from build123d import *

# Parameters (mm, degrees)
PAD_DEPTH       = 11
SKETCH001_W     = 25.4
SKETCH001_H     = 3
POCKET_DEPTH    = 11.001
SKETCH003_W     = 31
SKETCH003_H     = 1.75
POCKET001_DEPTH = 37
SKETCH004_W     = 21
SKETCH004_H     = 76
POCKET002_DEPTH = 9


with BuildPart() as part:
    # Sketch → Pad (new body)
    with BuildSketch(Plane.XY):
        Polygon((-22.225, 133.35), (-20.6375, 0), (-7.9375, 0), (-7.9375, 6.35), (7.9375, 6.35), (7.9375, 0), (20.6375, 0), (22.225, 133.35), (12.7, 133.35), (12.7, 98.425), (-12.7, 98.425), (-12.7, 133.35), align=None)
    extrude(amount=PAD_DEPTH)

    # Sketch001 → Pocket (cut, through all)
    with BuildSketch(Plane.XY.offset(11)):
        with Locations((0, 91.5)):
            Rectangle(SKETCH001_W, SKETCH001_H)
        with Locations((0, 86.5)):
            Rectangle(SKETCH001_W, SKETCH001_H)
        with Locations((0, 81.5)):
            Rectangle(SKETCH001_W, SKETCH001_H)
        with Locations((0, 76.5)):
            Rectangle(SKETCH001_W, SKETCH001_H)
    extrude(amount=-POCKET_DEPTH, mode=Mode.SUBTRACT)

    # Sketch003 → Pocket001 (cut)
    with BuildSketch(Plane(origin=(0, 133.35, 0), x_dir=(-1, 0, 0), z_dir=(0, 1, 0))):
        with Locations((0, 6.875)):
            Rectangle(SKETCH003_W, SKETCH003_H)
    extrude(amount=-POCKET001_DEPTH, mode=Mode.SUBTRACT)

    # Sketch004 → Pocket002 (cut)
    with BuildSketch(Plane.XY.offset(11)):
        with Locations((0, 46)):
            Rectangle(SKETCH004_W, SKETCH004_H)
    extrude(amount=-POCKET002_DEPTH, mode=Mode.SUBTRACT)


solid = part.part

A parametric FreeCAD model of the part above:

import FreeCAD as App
import Part
import Sketcher

V = App.Vector
Q = App.Units.Quantity

doc = App.newDocument("Part")
body = doc.addObject("PartDesign::Body", "Body")

sketch1 = body.newObject("Sketcher::SketchObject", "Sketch")
sketch1.AttachmentSupport = (doc.getObject("XY_Plane"), [""])
sketch1.MapMode = "FlatFace"
sketch1.addGeometry([
    Part.LineSegment(V(-22, 133, 0), V(-21, 0, 0)),
    Part.LineSegment(V(-21, 0, 0), V(-8, 0, 0)),
    Part.LineSegment(V(-8, 0, 0), V(-8, 6, 0)),
    Part.LineSegment(V(-8, 6, 0), V(8, 6, 0)),
    Part.LineSegment(V(8, 6, 0), V(8, 0, 0)),
    Part.LineSegment(V(8, 0, 0), V(21, 0, 0)),
    Part.LineSegment(V(21, 0, 0), V(22, 133, 0)),
    Part.LineSegment(V(22, 133, 0), V(13, 133, 0)),
    Part.LineSegment(V(13, 133, 0), V(13, 98, 0)),
    Part.LineSegment(V(13, 98, 0), V(-13, 98, 0)),
    Part.LineSegment(V(-13, 98, 0), V(-13, 133, 0)),
    Part.LineSegment(V(-13, 133, 0), V(-22, 133, 0)),
], False)
sketch1.addConstraint([
    Sketcher.Constraint("Coincident", 0, 2, 1, 1),
    Sketcher.Constraint("Coincident", 1, 2, 2, 1),
    Sketcher.Constraint("Coincident", 2, 2, 3, 1),
    Sketcher.Constraint("Coincident", 3, 2, 4, 1),
    Sketcher.Constraint("Coincident", 4, 2, 5, 1),
    Sketcher.Constraint("Coincident", 5, 2, 6, 1),
    Sketcher.Constraint("Coincident", 6, 2, 7, 1),
    Sketcher.Constraint("Coincident", 7, 2, 8, 1),
    Sketcher.Constraint("Coincident", 8, 2, 9, 1),
    Sketcher.Constraint("Coincident", 9, 2, 10, 1),
    Sketcher.Constraint("Coincident", 10, 2, 11, 1),
    Sketcher.Constraint("Coincident", 11, 2, 0, 1),
    Sketcher.Constraint("Horizontal", 1),
    Sketcher.Constraint("Vertical", 2),
    Sketcher.Constraint("Horizontal", 3),
    Sketcher.Constraint("Vertical", 4),
    Sketcher.Constraint("Horizontal", 5),
    Sketcher.Constraint("Horizontal", 7),
    Sketcher.Constraint("Vertical", 8),
    Sketcher.Constraint("Horizontal", 9),
    Sketcher.Constraint("Vertical", 10),
    Sketcher.Constraint("Horizontal", 11),
    Sketcher.Constraint("Symmetric", 1, 2, 4, 2, -1, 1),
    Sketcher.Constraint("Symmetric", 0, 2, 5, 2, -2),
    Sketcher.Constraint("Symmetric", 7, 2, 10, 2, -2),
    Sketcher.Constraint("Equal", 7, 11),
    Sketcher.Constraint("DistanceX", 1, 1, 1, 2, Q("12.7 mm")),
    Sketcher.Constraint("DistanceX", 9, 2, 9, 1, Q("25.4 mm")),
    Sketcher.Constraint("DistanceY", 3, 2, 6, 2, Q("127 mm")),
    Sketcher.Constraint("DistanceY", 2, 1, 2, 2, Q("6.35 mm")),
    Sketcher.Constraint("DistanceX", 3, 1, 3, 2, Q("15.875 mm")),
    Sketcher.Constraint("DistanceX", 7, 2, 7, 1, Q("9.525 mm")),
    Sketcher.Constraint("DistanceY", 8, 2, 8, 1, Q("34.925 mm")),
])
pad1 = body.newObject("PartDesign::Pad", "Pad")
pad1.Profile = sketch1
pad1.Length = 11

sketch2 = body.newObject("Sketcher::SketchObject", "Sketch001")
sketch2.AttachmentSupport = (doc.getObject("XY_Plane"), [""])
sketch2.MapMode = "FlatFace"
sketch2.AttachmentOffset = App.Placement(V(0, 0, 11), App.Rotation())
sketch2.addGeometry([
    Part.LineSegment(V(-12.7, 93, 0), V(-12.7, 90, 0)),
    Part.LineSegment(V(-12.7, 90, 0), V(12.7, 90, 0)),
    Part.LineSegment(V(12.7, 90, 0), V(12.7, 93, 0)),
    Part.LineSegment(V(12.7, 93, 0), V(-12.7, 93, 0)),
    Part.LineSegment(V(-12.7, 88, 0), V(-12.7, 85, 0)),
    Part.LineSegment(V(-12.7, 85, 0), V(12.7, 85, 0)),
    Part.LineSegment(V(12.7, 85, 0), V(12.7, 88, 0)),
    Part.LineSegment(V(12.7, 88, 0), V(-12.7, 88, 0)),
    Part.LineSegment(V(-12.7, 83, 0), V(-12.7, 80, 0)),
    Part.LineSegment(V(-12.7, 80, 0), V(12.7, 80, 0)),
    Part.LineSegment(V(12.7, 80, 0), V(12.7, 83, 0)),
    Part.LineSegment(V(12.7, 83, 0), V(-12.7, 83, 0)),
    Part.LineSegment(V(-12.7, 78, 0), V(-12.7, 75, 0)),
    Part.LineSegment(V(-12.7, 75, 0), V(12.7, 75, 0)),
    Part.LineSegment(V(12.7, 75, 0), V(12.7, 78, 0)),
    Part.LineSegment(V(12.7, 78, 0), V(-12.7, 78, 0)),
], False)
sketch2.addConstraint([
    Sketcher.Constraint("Coincident", 0, 2, 1, 1),
    Sketcher.Constraint("Coincident", 1, 2, 2, 1),
    Sketcher.Constraint("Coincident", 2, 2, 3, 1),
    Sketcher.Constraint("Coincident", 3, 2, 0, 1),
    Sketcher.Constraint("Coincident", 4, 2, 5, 1),
    Sketcher.Constraint("Coincident", 5, 2, 6, 1),
    Sketcher.Constraint("Coincident", 6, 2, 7, 1),
    Sketcher.Constraint("Coincident", 7, 2, 4, 1),
    Sketcher.Constraint("Coincident", 8, 2, 9, 1),
    Sketcher.Constraint("Coincident", 9, 2, 10, 1),
    Sketcher.Constraint("Coincident", 10, 2, 11, 1),
    Sketcher.Constraint("Coincident", 11, 2, 8, 1),
    Sketcher.Constraint("Coincident", 12, 2, 13, 1),
    Sketcher.Constraint("Coincident", 13, 2, 14, 1),
    Sketcher.Constraint("Coincident", 14, 2, 15, 1),
    Sketcher.Constraint("Coincident", 15, 2, 12, 1),
    Sketcher.Constraint("Vertical", 0),
    Sketcher.Constraint("Horizontal", 1),
    Sketcher.Constraint("Vertical", 2),
    Sketcher.Constraint("Horizontal", 3),
    Sketcher.Constraint("Vertical", 4),
    Sketcher.Constraint("Horizontal", 5),
    Sketcher.Constraint("Vertical", 6),
    Sketcher.Constraint("Horizontal", 7),
    Sketcher.Constraint("Vertical", 8),
    Sketcher.Constraint("Horizontal", 9),
    Sketcher.Constraint("Vertical", 10),
    Sketcher.Constraint("Horizontal", 11),
    Sketcher.Constraint("Vertical", 12),
    Sketcher.Constraint("Horizontal", 13),
    Sketcher.Constraint("Vertical", 14),
    Sketcher.Constraint("Horizontal", 15),
    Sketcher.Constraint("Vertical", 3, 2, 4, 2),
    Sketcher.Constraint("Vertical", 2, 2, 5, 2),
    Sketcher.Constraint("Vertical", 7, 2, 8, 2),
    Sketcher.Constraint("Vertical", 6, 2, 9, 2),
    Sketcher.Constraint("Vertical", 11, 2, 12, 2),
    Sketcher.Constraint("Vertical", 10, 2, 13, 2),
    Sketcher.Constraint("Equal", 2, 4),
    Sketcher.Constraint("Equal", 6, 8),
    Sketcher.Constraint("Equal", 10, 12),
    Sketcher.Constraint("DistanceY", 0, 2, 0, 1, Q("3 mm")),
    Sketcher.Constraint("DistanceX", 1, 1, 1, 2, Q("25.4 mm")),
    Sketcher.Constraint("DistanceY", -1, 1, 0, 2, Q("90 mm")),
    Sketcher.Constraint("DistanceY", -1, 1, 4, 2, Q("85 mm")),
    Sketcher.Constraint("DistanceY", -1, 1, 8, 2, Q("80 mm")),
    Sketcher.Constraint("DistanceY", -1, 1, 12, 2, Q("75 mm")),
    Sketcher.Constraint("DistanceX", 0, 2, -1, 1, Q("12.7 mm")),
])
pocket1 = body.newObject("PartDesign::Pocket", "Pocket")
pocket1.Profile = sketch2
pocket1.Type = "ThroughAll"

sketch3 = body.newObject("Sketcher::SketchObject", "Sketch002")
sketch3.AttachmentSupport = (doc.getObject("XZ_Plane"), [""])
sketch3.MapMode = "FlatFace"
sketch3.AttachmentOffset = App.Placement(V(0, 0, -133.35), App.Rotation())
sketch3.addGeometry([
    Part.LineSegment(V(15.5, 7.8, 0), V(15.5, 6, 0)),
    Part.LineSegment(V(15.5, 6, 0), V(-15.5, 6, 0)),
    Part.LineSegment(V(-15.5, 6, 0), V(-15.5, 7.8, 0)),
    Part.LineSegment(V(-15.5, 7.8, 0), V(15.5, 7.8, 0)),
], False)
sketch3.addConstraint([
    Sketcher.Constraint("Coincident", 0, 2, 1, 1),
    Sketcher.Constraint("Coincident", 1, 2, 2, 1),
    Sketcher.Constraint("Coincident", 2, 2, 3, 1),
    Sketcher.Constraint("Coincident", 3, 2, 0, 1),
    Sketcher.Constraint("Vertical", 0),
    Sketcher.Constraint("Horizontal", 1),
    Sketcher.Constraint("Vertical", 2),
    Sketcher.Constraint("Horizontal", 3),
    Sketcher.Constraint("DistanceX", 1, 2, 1, 1, Q("31 mm")),
    Sketcher.Constraint("DistanceY", -1, 1, 0, 2, Q("6 mm")),
    Sketcher.Constraint("DistanceY", 0, 2, 0, 1, Q("1.75 mm")),
    Sketcher.Constraint("DistanceX", -1, 1, 0, 2, Q("15.5 mm")),
])
pocket2 = body.newObject("PartDesign::Pocket", "Pocket001")
pocket2.Profile = sketch3
pocket2.Length = 37
pocket2.Reversed = True

sketch4 = body.newObject("Sketcher::SketchObject", "Sketch003")
sketch4.AttachmentSupport = (doc.getObject("XY_Plane"), [""])
sketch4.MapMode = "FlatFace"
sketch4.AttachmentOffset = App.Placement(V(0, 0, 11), App.Rotation())
sketch4.addGeometry([
    Part.LineSegment(V(-10, 84, 0), V(-10, 8, 0)),
    Part.LineSegment(V(-10, 8, 0), V(10, 8, 0)),
    Part.LineSegment(V(10, 8, 0), V(10, 84, 0)),
    Part.LineSegment(V(10, 84, 0), V(-10, 84, 0)),
], False)
sketch4.addConstraint([
    Sketcher.Constraint("Coincident", 0, 2, 1, 1),
    Sketcher.Constraint("Coincident", 1, 2, 2, 1),
    Sketcher.Constraint("Coincident", 2, 2, 3, 1),
    Sketcher.Constraint("Coincident", 3, 2, 0, 1),
    Sketcher.Constraint("Vertical", 0),
    Sketcher.Constraint("Horizontal", 1),
    Sketcher.Constraint("Vertical", 2),
    Sketcher.Constraint("Horizontal", 3),
    Sketcher.Constraint("DistanceX", 1, 1, 1, 2, Q("21 mm")),
    Sketcher.Constraint("DistanceY", 0, 2, 0, 1, Q("76 mm")),
    Sketcher.Constraint("DistanceY", -1, 1, 0, 2, Q("8 mm")),
    Sketcher.Constraint("DistanceX", 0, 2, -1, 1, Q("10.5 mm")),
])
pocket3 = body.newObject("PartDesign::Pocket", "Pocket002")
pocket3.Profile = sketch4
pocket3.Length = 9

doc.recompute()
